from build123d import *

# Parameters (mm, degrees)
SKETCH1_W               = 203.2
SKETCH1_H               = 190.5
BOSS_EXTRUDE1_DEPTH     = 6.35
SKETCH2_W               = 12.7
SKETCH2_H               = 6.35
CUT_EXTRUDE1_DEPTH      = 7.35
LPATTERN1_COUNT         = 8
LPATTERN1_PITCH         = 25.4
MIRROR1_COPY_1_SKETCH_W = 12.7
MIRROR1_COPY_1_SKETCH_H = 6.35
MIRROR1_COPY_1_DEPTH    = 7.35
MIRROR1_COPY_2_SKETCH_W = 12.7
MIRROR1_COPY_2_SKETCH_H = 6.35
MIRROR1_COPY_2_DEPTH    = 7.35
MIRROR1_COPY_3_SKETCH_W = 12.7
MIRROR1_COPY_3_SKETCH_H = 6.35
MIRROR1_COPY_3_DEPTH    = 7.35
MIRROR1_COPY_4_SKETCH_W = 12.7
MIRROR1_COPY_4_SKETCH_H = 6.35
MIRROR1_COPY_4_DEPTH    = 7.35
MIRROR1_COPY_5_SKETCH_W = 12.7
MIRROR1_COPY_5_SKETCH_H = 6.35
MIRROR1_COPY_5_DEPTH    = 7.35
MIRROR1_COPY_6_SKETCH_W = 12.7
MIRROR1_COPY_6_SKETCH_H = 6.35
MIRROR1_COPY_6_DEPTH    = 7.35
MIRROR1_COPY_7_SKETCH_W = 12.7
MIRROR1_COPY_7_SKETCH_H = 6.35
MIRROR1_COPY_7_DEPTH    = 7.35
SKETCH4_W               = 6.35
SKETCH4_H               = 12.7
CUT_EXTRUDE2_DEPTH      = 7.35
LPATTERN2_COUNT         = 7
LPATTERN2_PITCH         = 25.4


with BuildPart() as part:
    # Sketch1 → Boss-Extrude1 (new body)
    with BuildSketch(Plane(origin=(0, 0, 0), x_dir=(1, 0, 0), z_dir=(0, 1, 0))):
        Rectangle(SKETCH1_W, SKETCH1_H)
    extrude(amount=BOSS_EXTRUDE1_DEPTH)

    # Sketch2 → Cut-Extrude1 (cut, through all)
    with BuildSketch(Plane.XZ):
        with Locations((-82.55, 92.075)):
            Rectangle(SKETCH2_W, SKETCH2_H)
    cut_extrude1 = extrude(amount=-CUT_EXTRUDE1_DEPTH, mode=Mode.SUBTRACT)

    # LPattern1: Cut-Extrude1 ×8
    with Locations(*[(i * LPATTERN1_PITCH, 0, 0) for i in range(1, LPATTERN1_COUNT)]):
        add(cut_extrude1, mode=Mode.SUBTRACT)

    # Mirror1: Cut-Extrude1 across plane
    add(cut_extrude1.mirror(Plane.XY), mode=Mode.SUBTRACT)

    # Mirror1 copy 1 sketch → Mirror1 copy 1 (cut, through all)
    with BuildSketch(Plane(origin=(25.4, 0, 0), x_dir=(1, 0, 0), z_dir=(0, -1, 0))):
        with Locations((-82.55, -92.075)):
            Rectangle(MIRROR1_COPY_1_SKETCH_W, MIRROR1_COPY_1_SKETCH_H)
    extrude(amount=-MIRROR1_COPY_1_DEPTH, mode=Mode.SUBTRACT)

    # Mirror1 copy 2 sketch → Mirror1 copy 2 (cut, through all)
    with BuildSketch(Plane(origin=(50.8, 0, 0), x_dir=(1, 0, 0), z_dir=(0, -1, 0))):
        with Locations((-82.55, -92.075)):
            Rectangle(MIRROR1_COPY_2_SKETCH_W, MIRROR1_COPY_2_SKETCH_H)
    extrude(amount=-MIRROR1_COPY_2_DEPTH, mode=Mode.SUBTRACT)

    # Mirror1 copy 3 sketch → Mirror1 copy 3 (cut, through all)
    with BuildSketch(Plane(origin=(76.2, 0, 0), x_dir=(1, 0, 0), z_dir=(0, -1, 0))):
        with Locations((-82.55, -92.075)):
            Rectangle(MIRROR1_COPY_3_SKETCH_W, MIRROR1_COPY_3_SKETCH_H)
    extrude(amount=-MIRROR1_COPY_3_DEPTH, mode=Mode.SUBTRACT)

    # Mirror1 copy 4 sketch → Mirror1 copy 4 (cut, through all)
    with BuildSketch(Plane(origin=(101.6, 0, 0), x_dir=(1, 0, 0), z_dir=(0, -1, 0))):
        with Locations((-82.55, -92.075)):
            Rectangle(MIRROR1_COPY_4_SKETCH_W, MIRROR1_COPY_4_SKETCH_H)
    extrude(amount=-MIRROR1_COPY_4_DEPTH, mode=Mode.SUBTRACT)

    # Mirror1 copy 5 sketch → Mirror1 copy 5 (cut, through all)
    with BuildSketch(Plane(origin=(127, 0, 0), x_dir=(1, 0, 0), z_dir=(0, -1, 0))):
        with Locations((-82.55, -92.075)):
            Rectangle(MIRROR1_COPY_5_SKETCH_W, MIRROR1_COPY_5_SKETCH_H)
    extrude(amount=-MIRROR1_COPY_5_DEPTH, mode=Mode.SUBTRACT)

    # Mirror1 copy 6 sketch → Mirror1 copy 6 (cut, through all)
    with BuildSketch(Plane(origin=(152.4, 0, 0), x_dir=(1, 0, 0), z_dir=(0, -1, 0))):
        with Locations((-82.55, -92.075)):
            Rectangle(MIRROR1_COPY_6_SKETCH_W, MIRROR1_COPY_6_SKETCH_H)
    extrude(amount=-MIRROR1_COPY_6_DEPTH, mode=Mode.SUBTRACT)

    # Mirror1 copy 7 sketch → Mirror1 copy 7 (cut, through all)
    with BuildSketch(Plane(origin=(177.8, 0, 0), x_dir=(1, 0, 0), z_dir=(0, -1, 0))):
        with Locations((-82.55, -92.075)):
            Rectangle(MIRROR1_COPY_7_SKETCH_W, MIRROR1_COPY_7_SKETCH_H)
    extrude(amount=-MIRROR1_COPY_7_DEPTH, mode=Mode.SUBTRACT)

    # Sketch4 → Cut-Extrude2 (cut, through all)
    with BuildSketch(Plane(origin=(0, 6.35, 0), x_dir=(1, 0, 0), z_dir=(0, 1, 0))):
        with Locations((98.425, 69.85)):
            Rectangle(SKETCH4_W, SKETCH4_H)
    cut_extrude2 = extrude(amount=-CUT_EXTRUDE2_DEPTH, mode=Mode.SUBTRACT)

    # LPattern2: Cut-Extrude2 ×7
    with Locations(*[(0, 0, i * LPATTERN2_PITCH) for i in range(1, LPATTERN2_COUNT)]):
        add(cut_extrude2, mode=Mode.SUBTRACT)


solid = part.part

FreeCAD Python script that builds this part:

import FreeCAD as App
import Part
import Sketcher
Q = App.Units.Quantity

doc = App.newDocument("Part")
body = doc.addObject("PartDesign::Body", "Body")

# Sketch on XZ plane
sketch1 = doc.addObject("Sketcher::SketchObject", "Sketch")
body.addObject(sketch1)
sketch1.AttachmentSupport = (doc.XZ_Plane, [""])
sketch1.MapMode = "FlatFace"
sketch1.addGeometry(Part.LineSegment(App.Vector(-102, -95, 0), App.Vector(-102, 95, 0)), False)
sketch1.addGeometry(Part.LineSegment(App.Vector(-102, 95, 0), App.Vector(102, 95, 0)), False)
sketch1.addGeometry(Part.LineSegment(App.Vector(102, 95, 0), App.Vector(102, -95, 0)), False)
sketch1.addGeometry(Part.LineSegment(App.Vector(102, -95, 0), App.Vector(-102, -95, 0)), False)
sketch1.addConstraint(Sketcher.Constraint("Coincident", 0, 2, 1, 1))
sketch1.addConstraint(Sketcher.Constraint("Coincident", 1, 2, 2, 1))
sketch1.addConstraint(Sketcher.Constraint("Coincident", 2, 2, 3, 1))
sketch1.addConstraint(Sketcher.Constraint("Coincident", 3, 2, 0, 1))
sketch1.addConstraint(Sketcher.Constraint("Vertical", 0))
sketch1.addConstraint(Sketcher.Constraint("Horizontal", 1))
sketch1.addConstraint(Sketcher.Constraint("Vertical", 2))
sketch1.addConstraint(Sketcher.Constraint("Horizontal", 3))
sketch1.addConstraint(Sketcher.Constraint("Symmetric", 0, 2, 2, 2, -1, 1))
sketch1.addConstraint(Sketcher.Constraint("DistanceX", 1, 1, 1, 2, Q("8 in")))
sketch1.addConstraint(Sketcher.Constraint("DistanceY", 0, 1, 0, 2, Q("7.5 in")))
pad1 = doc.addObject("PartDesign::Pad", "Pad")
body.addObject(pad1)
pad1.Profile = sketch1
pad1.Length = Q("0.25 in")
pad1.Reversed = True

# Sketch on XZ plane
sketch2 = doc.addObject("Sketcher::SketchObject", "Sketch001")
body.addObject(sketch2)
sketch2.AttachmentSupport = (doc.XZ_Plane, [""])
sketch2.MapMode = "FlatFace"
sketch2.addGeometry(Part.LineSegment(App.Vector(-89, 95, 0), App.Vector(-89, 89, 0)), False)
sketch2.addGeometry(Part.LineSegment(App.Vector(-89, 89, 0), App.Vector(-76, 89, 0)), False)
sketch2.addGeometry(Part.LineSegment(App.Vector(-76, 89, 0), App.Vector(-76, 95, 0)), False)
sketch2.addGeometry(Part.LineSegment(App.Vector(-76, 95, 0), App.Vector(-89, 95, 0)), False)
sketch2.addConstraint(Sketcher.Constraint("Coincident", 0, 2, 1, 1))
sketch2.addConstraint(Sketcher.Constraint("Coincident", 1, 2, 2, 1))
sketch2.addConstraint(Sketcher.Constraint("Coincident", 2, 2, 3, 1))
sketch2.addConstraint(Sketcher.Constraint("Coincident", 3, 2, 0, 1))
sketch2.addConstraint(Sketcher.Constraint("Vertical", 0))
sketch2.addConstraint(Sketcher.Constraint("Horizontal", 1))
sketch2.addConstraint(Sketcher.Constraint("Vertical", 2))
sketch2.addConstraint(Sketcher.Constraint("Horizontal", 3))
sketch2.addConstraint(Sketcher.Constraint("DistanceX", 1, 1, 1, 2, Q("0.5 in")))
sketch2.addConstraint(Sketcher.Constraint("DistanceX", 1, 2, -1, 1, Q("3 in")))
sketch2.addConstraint(Sketcher.Constraint("DistanceY", 0, 2, 0, 1, Q("0.25 in")))
sketch2.addConstraint(Sketcher.Constraint("DistanceY", -1, 1, 0, 2, Q("3.5 in")))
pocket1 = doc.addObject("PartDesign::Pocket", "Pocket")
body.addObject(pocket1)
pocket1.Profile = sketch2
pocket1.Type = "ThroughAll"
doc.recompute()

linearpattern = doc.addObject("PartDesign::LinearPattern", "LinearPattern")
body.addObject(linearpattern)
linearpattern.Originals = [pocket1]
linearpattern.Direction = (doc.X_Axis, [""])
linearpattern.Mode = "offset"
linearpattern.Offset = Q("1 in")
linearpattern.Occurrences = 8
body.Tip = linearpattern
doc.recompute()

mirrored = doc.addObject("PartDesign::Mirrored", "Mirrored")
body.addObject(mirrored)
mirrored.Originals = [pocket1]
mirrored.MirrorPlane = (doc.XY_Plane, [""])
body.Tip = mirrored

# Sketch on XZ plane
sketch3 = doc.addObject("Sketcher::SketchObject", "Sketch002")
body.addObject(sketch3)
sketch3.AttachmentSupport = (doc.XZ_Plane, [""])
sketch3.MapMode = "FlatFace"
sketch3.addGeometry(Part.LineSegment(App.Vector(-64, -89, 0), App.Vector(-64, -95, 0)), False)
sketch3.addGeometry(Part.LineSegment(App.Vector(-64, -95, 0), App.Vector(-51, -95, 0)), False)
sketch3.addGeometry(Part.LineSegment(App.Vector(-51, -95, 0), App.Vector(-51, -89, 0)), False)
sketch3.addGeometry(Part.LineSegment(App.Vector(-51, -89, 0), App.Vector(-64, -89, 0)), False)
sketch3.addConstraint(Sketcher.Constraint("Coincident", 0, 2, 1, 1))
sketch3.addConstraint(Sketcher.Constraint("Coincident", 1, 2, 2, 1))
sketch3.addConstraint(Sketcher.Constraint("Coincident", 2, 2, 3, 1))
sketch3.addConstraint(Sketcher.Constraint("Coincident", 3, 2, 0, 1))
sketch3.addConstraint(Sketcher.Constraint("Vertical", 0))
sketch3.addConstraint(Sketcher.Constraint("Horizontal", 1))
sketch3.addConstraint(Sketcher.Constraint("Vertical", 2))
sketch3.addConstraint(Sketcher.Constraint("Horizontal", 3))
sketch3.addConstraint(Sketcher.Constraint("DistanceX", 1, 1, 1, 2, Q("0.5 in")))
sketch3.addConstraint(Sketcher.Constraint("DistanceX", 1, 2, -1, 1, Q("2 in")))
sketch3.addConstraint(Sketcher.Constraint("DistanceY", 0, 2, 0, 1, Q("0.25 in")))
sketch3.addConstraint(Sketcher.Constraint("DistanceY", 2, 2, -1, 1, Q("3.5 in")))
pocket2 = doc.addObject("PartDesign::Pocket", "Pocket001")
body.addObject(pocket2)
pocket2.Profile = sketch3
pocket2.Type = "ThroughAll"

# Sketch on XZ plane
sketch4 = doc.addObject("Sketcher::SketchObject", "Sketch003")
body.addObject(sketch4)
sketch4.AttachmentSupport = (doc.XZ_Plane, [""])
sketch4.MapMode = "FlatFace"
sketch4.addGeometry(Part.LineSegment(App.Vector(-38, -89, 0), App.Vector(-38, -95, 0)), False)
sketch4.addGeometry(Part.LineSegment(App.Vector(-38, -95, 0), App.Vector(-25, -95, 0)), False)
sketch4.addGeometry(Part.LineSegment(App.Vector(-25, -95, 0), App.Vector(-25, -89, 0)), False)
sketch4.addGeometry(Part.LineSegment(App.Vector(-25, -89, 0), App.Vector(-38, -89, 0)), False)
sketch4.addConstraint(Sketcher.Constraint("Coincident", 0, 2, 1, 1))
sketch4.addConstraint(Sketcher.Constraint("Coincident", 1, 2, 2, 1))
sketch4.addConstraint(Sketcher.Constraint("Coincident", 2, 2, 3, 1))
sketch4.addConstraint(Sketcher.Constraint("Coincident", 3, 2, 0, 1))
sketch4.addConstraint(Sketcher.Constraint("Vertical", 0))
sketch4.addConstraint(Sketcher.Constraint("Horizontal", 1))
sketch4.addConstraint(Sketcher.Constraint("Vertical", 2))
sketch4.addConstraint(Sketcher.Constraint("Horizontal", 3))
sketch4.addConstraint(Sketcher.Constraint("DistanceX", 1, 1, 1, 2, Q("0.5 in")))
sketch4.addConstraint(Sketcher.Constraint("DistanceX", 1, 2, -1, 1, Q("1 in")))
sketch4.addConstraint(Sketcher.Constraint("DistanceY", 0, 2, 0, 1, Q("0.25 in")))
sketch4.addConstraint(Sketcher.Constraint("DistanceY", 2, 2, -1, 1, Q("3.5 in")))
pocket3 = doc.addObject("PartDesign::Pocket", "Pocket002")
body.addObject(pocket3)
pocket3.Profile = sketch4
pocket3.Type = "ThroughAll"

# Sketch on XZ plane
sketch5 = doc.addObject("Sketcher::SketchObject", "Sketch004")
body.addObject(sketch5)
sketch5.AttachmentSupport = (doc.XZ_Plane, [""])
sketch5.MapMode = "FlatFace"
sketch5.addGeometry(Part.LineSegment(App.Vector(-13, -89, 0), App.Vector(-13, -95, 0)), False)
sketch5.addGeometry(Part.LineSegment(App.Vector(-13, -95, 0), App.Vector(0, -95, 0)), False)
sketch5.addGeometry(Part.LineSegment(App.Vector(0, -95, 0), App.Vector(0, -89, 0)), False)
sketch5.addGeometry(Part.LineSegment(App.Vector(0, -89, 0), App.Vector(-13, -89, 0)), False)
sketch5.addConstraint(Sketcher.Constraint("Coincident", 0, 2, 1, 1))
sketch5.addConstraint(Sketcher.Constraint("Coincident", 1, 2, 2, 1))
sketch5.addConstraint(Sketcher.Constraint("Coincident", 2, 2, 3, 1))
sketch5.addConstraint(Sketcher.Constraint("Coincident", 3, 2, 0, 1))
sketch5.addConstraint(Sketcher.Constraint("Vertical", 0))
sketch5.addConstraint(Sketcher.Constraint("Horizontal", 1))
sketch5.addConstraint(Sketcher.Constraint("Vertical", 2))
sketch5.addConstraint(Sketcher.Constraint("Horizontal", 3))
sketch5.addConstraint(Sketcher.Constraint("PointOnObject", 1, 2, -2))
sketch5.addConstraint(Sketcher.Constraint("DistanceX", 1, 1, 1, 2, Q("0.5 in")))
sketch5.addConstraint(Sketcher.Constraint("DistanceY", 0, 2, 0, 1, Q("0.25 in")))
sketch5.addConstraint(Sketcher.Constraint("DistanceY", 2, 2, -1, 1, Q("3.5 in")))
pocket4 = doc.addObject("PartDesign::Pocket", "Pocket003")
body.addObject(pocket4)
pocket4.Profile = sketch5
pocket4.Type = "ThroughAll"

# Sketch on XZ plane
sketch6 = doc.addObject("Sketcher::SketchObject", "Sketch005")
body.addObject(sketch6)
sketch6.AttachmentSupport = (doc.XZ_Plane, [""])
sketch6.MapMode = "FlatFace"
sketch6.addGeometry(Part.LineSegment(App.Vector(13, -89, 0), App.Vector(13, -95, 0)), False)
sketch6.addGeometry(Part.LineSegment(App.Vector(13, -95, 0), App.Vector(25, -95, 0)), False)
sketch6.addGeometry(Part.LineSegment(App.Vector(25, -95, 0), App.Vector(25, -89, 0)), False)
sketch6.addGeometry(Part.LineSegment(App.Vector(25, -89, 0), App.Vector(13, -89, 0)), False)
sketch6.addConstraint(Sketcher.Constraint("Coincident", 0, 2, 1, 1))
sketch6.addConstraint(Sketcher.Constraint("Coincident", 1, 2, 2, 1))
sketch6.addConstraint(Sketcher.Constraint("Coincident", 2, 2, 3, 1))
sketch6.addConstraint(Sketcher.Constraint("Coincident", 3, 2, 0, 1))
sketch6.addConstraint(Sketcher.Constraint("Vertical", 0))
sketch6.addConstraint(Sketcher.Constraint("Horizontal", 1))
sketch6.addConstraint(Sketcher.Constraint("Vertical", 2))
sketch6.addConstraint(Sketcher.Constraint("Horizontal", 3))
sketch6.addConstraint(Sketcher.Constraint("DistanceX", 1, 1, 1, 2, Q("0.5 in")))
sketch6.addConstraint(Sketcher.Constraint("DistanceX", -1, 1, 1, 2, Q("1 in")))
sketch6.addConstraint(Sketcher.Constraint("DistanceY", 0, 2, 0, 1, Q("0.25 in")))
sketch6.addConstraint(Sketcher.Constraint("DistanceY", 2, 2, -1, 1, Q("3.5 in")))
pocket5 = doc.addObject("PartDesign::Pocket", "Pocket004")
body.addObject(pocket5)
pocket5.Profile = sketch6
pocket5.Type = "ThroughAll"

# Sketch on XZ plane
sketch7 = doc.addObject("Sketcher::SketchObject", "Sketch006")
body.addObject(sketch7)
sketch7.AttachmentSupport = (doc.XZ_Plane, [""])
sketch7.MapMode = "FlatFace"
sketch7.addGeometry(Part.LineSegment(App.Vector(38, -89, 0), App.Vector(38, -95, 0)), False)
sketch7.addGeometry(Part.LineSegment(App.Vector(38, -95, 0), App.Vector(51, -95, 0)), False)
sketch7.addGeometry(Part.LineSegment(App.Vector(51, -95, 0), App.Vector(51, -89, 0)), False)
sketch7.addGeometry(Part.LineSegment(App.Vector(51, -89, 0), App.Vector(38, -89, 0)), False)
sketch7.addConstraint(Sketcher.Constraint("Coincident", 0, 2, 1, 1))
sketch7.addConstraint(Sketcher.Constraint("Coincident", 1, 2, 2, 1))
sketch7.addConstraint(Sketcher.Constraint("Coincident", 2, 2, 3, 1))
sketch7.addConstraint(Sketcher.Constraint("Coincident", 3, 2, 0, 1))
sketch7.addConstraint(Sketcher.Constraint("Vertical", 0))
sketch7.addConstraint(Sketcher.Constraint("Horizontal", 1))
sketch7.addConstraint(Sketcher.Constraint("Vertical", 2))
sketch7.addConstraint(Sketcher.Constraint("Horizontal", 3))
sketch7.addConstraint(Sketcher.Constraint("DistanceX", 1, 1, 1, 2, Q("0.5 in")))
sketch7.addConstraint(Sketcher.Constraint("DistanceX", -1, 1, 1, 2, Q("2 in")))
sketch7.addConstraint(Sketcher.Constraint("DistanceY", 0, 2, 0, 1, Q("0.25 in")))
sketch7.addConstraint(Sketcher.Constraint("DistanceY", 2, 2, -1, 1, Q("3.5 in")))
pocket6 = doc.addObject("PartDesign::Pocket", "Pocket005")
body.addObject(pocket6)
pocket6.Profile = sketch7
pocket6.Type = "ThroughAll"

# Sketch on XZ plane
sketch8 = doc.addObject("Sketcher::SketchObject", "Sketch007")
body.addObject(sketch8)
sketch8.AttachmentSupport = (doc.XZ_Plane, [""])
sketch8.MapMode = "FlatFace"
sketch8.addGeometry(Part.LineSegment(App.Vector(64, -89, 0), App.Vector(64, -95, 0)), False)
sketch8.addGeometry(Part.LineSegment(App.Vector(64, -95, 0), App.Vector(76, -95, 0)), False)
sketch8.addGeometry(Part.LineSegment(App.Vector(76, -95, 0), App.Vector(76, -89, 0)), False)
sketch8.addGeometry(Part.LineSegment(App.Vector(76, -89, 0), App.Vector(64, -89, 0)), False)
sketch8.addConstraint(Sketcher.Constraint("Coincident", 0, 2, 1, 1))
sketch8.addConstraint(Sketcher.Constraint("Coincident", 1, 2, 2, 1))
sketch8.addConstraint(Sketcher.Constraint("Coincident", 2, 2, 3, 1))
sketch8.addConstraint(Sketcher.Constraint("Coincident", 3, 2, 0, 1))
sketch8.addConstraint(Sketcher.Constraint("Vertical", 0))
sketch8.addConstraint(Sketcher.Constraint("Horizontal", 1))
sketch8.addConstraint(Sketcher.Constraint("Vertical", 2))
sketch8.addConstraint(Sketcher.Constraint("Horizontal", 3))
sketch8.addConstraint(Sketcher.Constraint("DistanceX", 1, 1, 1, 2, Q("0.5 in")))
sketch8.addConstraint(Sketcher.Constraint("DistanceX", -1, 1, 1, 2, Q("3 in")))
sketch8.addConstraint(Sketcher.Constraint("DistanceY", 0, 2, 0, 1, Q("0.25 in")))
sketch8.addConstraint(Sketcher.Constraint("DistanceY", 2, 2, -1, 1, Q("3.5 in")))
pocket7 = doc.addObject("PartDesign::Pocket", "Pocket006")
body.addObject(pocket7)
pocket7.Profile = sketch8
pocket7.Type = "ThroughAll"

# Sketch on XZ plane
sketch9 = doc.addObject("Sketcher::SketchObject", "Sketch008")
body.addObject(sketch9)
sketch9.AttachmentSupport = (doc.XZ_Plane, [""])
sketch9.MapMode = "FlatFace"
sketch9.addGeometry(Part.LineSegment(App.Vector(89, -89, 0), App.Vector(89, -95, 0)), False)
sketch9.addGeometry(Part.LineSegment(App.Vector(89, -95, 0), App.Vector(102, -95, 0)), False)
sketch9.addGeometry(Part.LineSegment(App.Vector(102, -95, 0), App.Vector(102, -89, 0)), False)
sketch9.addGeometry(Part.LineSegment(App.Vector(102, -89, 0), App.Vector(89, -89, 0)), False)
sketch9.addConstraint(Sketcher.Constraint("Coincident", 0, 2, 1, 1))
sketch9.addConstraint(Sketcher.Constraint("Coincident", 1, 2, 2, 1))
sketch9.addConstraint(Sketcher.Constraint("Coincident", 2, 2, 3, 1))
sketch9.addConstraint(Sketcher.Constraint("Coincident", 3, 2, 0, 1))
sketch9.addConstraint(Sketcher.Constraint("Vertical", 0))
sketch9.addConstraint(Sketcher.Constraint("Horizontal", 1))
sketch9.addConstraint(Sketcher.Constraint("Vertical", 2))
sketch9.addConstraint(Sketcher.Constraint("Horizontal", 3))
sketch9.addConstraint(Sketcher.Constraint("DistanceX", 1, 1, 1, 2, Q("0.5 in")))
sketch9.addConstraint(Sketcher.Constraint("DistanceX", -1, 1, 1, 2, Q("4 in")))
sketch9.addConstraint(Sketcher.Constraint("DistanceY", 0, 2, 0, 1, Q("0.25 in")))
sketch9.addConstraint(Sketcher.Constraint("DistanceY", 2, 2, -1, 1, Q("3.5 in")))
pocket8 = doc.addObject("PartDesign::Pocket", "Pocket007")
body.addObject(pocket8)
pocket8.Profile = sketch9
pocket8.Type = "ThroughAll"

# Sketch on XZ plane
sketch10 = doc.addObject("Sketcher::SketchObject", "Sketch009")
body.addObject(sketch10)
sketch10.AttachmentSupport = (doc.XZ_Plane, [""])
sketch10.MapMode = "FlatFace"
sketch10.AttachmentOffset = App.Placement(App.Vector(0, 0, -0.25 * 25.4), App.Rotation())
sketch10.addGeometry(Part.LineSegment(App.Vector(95, -76, 0), App.Vector(95, -64, 0)), False)
sketch10.addGeometry(Part.LineSegment(App.Vector(95, -64, 0), App.Vector(102, -64, 0)), False)
sketch10.addGeometry(Part.LineSegment(App.Vector(102, -64, 0), App.Vector(102, -76, 0)), False)
sketch10.addGeometry(Part.LineSegment(App.Vector(102, -76, 0), App.Vector(95, -76, 0)), False)
sketch10.addConstraint(Sketcher.Constraint("Coincident", 0, 2, 1, 1))
sketch10.addConstraint(Sketcher.Constraint("Coincident", 1, 2, 2, 1))
sketch10.addConstraint(Sketcher.Constraint("Coincident", 2, 2, 3, 1))
sketch10.addConstraint(Sketcher.Constraint("Coincident", 3, 2, 0, 1))
sketch10.addConstraint(Sketcher.Constraint("Vertical", 0))
sketch10.addConstraint(Sketcher.Constraint("Horizontal", 1))
sketch10.addConstraint(Sketcher.Constraint("Vertical", 2))
sketch10.addConstraint(Sketcher.Constraint("Horizontal", 3))
sketch10.addConstraint(Sketcher.Constraint("DistanceY", 0, 1, 0, 2, Q("0.5 in")))
sketch10.addConstraint(Sketcher.Constraint("DistanceX", -1, 1, 1, 2, Q("4 in")))
sketch10.addConstraint(Sketcher.Constraint("DistanceY", 2, 2, -1, 1, Q("3 in")))
sketch10.addConstraint(Sketcher.Constraint("DistanceX", 1, 1, 1, 2, Q("0.25 in")))
pocket9 = doc.addObject("PartDesign::Pocket", "Pocket008")
body.addObject(pocket9)
pocket9.Profile = sketch10
pocket9.Type = "ThroughAll"
pocket9.Reversed = True
doc.recompute()

linearpattern2 = doc.addObject("PartDesign::LinearPattern", "LinearPattern001")
body.addObject(linearpattern2)
linearpattern2.Originals = [pocket9]
linearpattern2.Direction = (doc.Z_Axis, [""])
linearpattern2.Mode = "offset"
linearpattern2.Offset = Q("1 in")
linearpattern2.Occurrences = 7
body.Tip = linearpattern2

doc.recompute()
